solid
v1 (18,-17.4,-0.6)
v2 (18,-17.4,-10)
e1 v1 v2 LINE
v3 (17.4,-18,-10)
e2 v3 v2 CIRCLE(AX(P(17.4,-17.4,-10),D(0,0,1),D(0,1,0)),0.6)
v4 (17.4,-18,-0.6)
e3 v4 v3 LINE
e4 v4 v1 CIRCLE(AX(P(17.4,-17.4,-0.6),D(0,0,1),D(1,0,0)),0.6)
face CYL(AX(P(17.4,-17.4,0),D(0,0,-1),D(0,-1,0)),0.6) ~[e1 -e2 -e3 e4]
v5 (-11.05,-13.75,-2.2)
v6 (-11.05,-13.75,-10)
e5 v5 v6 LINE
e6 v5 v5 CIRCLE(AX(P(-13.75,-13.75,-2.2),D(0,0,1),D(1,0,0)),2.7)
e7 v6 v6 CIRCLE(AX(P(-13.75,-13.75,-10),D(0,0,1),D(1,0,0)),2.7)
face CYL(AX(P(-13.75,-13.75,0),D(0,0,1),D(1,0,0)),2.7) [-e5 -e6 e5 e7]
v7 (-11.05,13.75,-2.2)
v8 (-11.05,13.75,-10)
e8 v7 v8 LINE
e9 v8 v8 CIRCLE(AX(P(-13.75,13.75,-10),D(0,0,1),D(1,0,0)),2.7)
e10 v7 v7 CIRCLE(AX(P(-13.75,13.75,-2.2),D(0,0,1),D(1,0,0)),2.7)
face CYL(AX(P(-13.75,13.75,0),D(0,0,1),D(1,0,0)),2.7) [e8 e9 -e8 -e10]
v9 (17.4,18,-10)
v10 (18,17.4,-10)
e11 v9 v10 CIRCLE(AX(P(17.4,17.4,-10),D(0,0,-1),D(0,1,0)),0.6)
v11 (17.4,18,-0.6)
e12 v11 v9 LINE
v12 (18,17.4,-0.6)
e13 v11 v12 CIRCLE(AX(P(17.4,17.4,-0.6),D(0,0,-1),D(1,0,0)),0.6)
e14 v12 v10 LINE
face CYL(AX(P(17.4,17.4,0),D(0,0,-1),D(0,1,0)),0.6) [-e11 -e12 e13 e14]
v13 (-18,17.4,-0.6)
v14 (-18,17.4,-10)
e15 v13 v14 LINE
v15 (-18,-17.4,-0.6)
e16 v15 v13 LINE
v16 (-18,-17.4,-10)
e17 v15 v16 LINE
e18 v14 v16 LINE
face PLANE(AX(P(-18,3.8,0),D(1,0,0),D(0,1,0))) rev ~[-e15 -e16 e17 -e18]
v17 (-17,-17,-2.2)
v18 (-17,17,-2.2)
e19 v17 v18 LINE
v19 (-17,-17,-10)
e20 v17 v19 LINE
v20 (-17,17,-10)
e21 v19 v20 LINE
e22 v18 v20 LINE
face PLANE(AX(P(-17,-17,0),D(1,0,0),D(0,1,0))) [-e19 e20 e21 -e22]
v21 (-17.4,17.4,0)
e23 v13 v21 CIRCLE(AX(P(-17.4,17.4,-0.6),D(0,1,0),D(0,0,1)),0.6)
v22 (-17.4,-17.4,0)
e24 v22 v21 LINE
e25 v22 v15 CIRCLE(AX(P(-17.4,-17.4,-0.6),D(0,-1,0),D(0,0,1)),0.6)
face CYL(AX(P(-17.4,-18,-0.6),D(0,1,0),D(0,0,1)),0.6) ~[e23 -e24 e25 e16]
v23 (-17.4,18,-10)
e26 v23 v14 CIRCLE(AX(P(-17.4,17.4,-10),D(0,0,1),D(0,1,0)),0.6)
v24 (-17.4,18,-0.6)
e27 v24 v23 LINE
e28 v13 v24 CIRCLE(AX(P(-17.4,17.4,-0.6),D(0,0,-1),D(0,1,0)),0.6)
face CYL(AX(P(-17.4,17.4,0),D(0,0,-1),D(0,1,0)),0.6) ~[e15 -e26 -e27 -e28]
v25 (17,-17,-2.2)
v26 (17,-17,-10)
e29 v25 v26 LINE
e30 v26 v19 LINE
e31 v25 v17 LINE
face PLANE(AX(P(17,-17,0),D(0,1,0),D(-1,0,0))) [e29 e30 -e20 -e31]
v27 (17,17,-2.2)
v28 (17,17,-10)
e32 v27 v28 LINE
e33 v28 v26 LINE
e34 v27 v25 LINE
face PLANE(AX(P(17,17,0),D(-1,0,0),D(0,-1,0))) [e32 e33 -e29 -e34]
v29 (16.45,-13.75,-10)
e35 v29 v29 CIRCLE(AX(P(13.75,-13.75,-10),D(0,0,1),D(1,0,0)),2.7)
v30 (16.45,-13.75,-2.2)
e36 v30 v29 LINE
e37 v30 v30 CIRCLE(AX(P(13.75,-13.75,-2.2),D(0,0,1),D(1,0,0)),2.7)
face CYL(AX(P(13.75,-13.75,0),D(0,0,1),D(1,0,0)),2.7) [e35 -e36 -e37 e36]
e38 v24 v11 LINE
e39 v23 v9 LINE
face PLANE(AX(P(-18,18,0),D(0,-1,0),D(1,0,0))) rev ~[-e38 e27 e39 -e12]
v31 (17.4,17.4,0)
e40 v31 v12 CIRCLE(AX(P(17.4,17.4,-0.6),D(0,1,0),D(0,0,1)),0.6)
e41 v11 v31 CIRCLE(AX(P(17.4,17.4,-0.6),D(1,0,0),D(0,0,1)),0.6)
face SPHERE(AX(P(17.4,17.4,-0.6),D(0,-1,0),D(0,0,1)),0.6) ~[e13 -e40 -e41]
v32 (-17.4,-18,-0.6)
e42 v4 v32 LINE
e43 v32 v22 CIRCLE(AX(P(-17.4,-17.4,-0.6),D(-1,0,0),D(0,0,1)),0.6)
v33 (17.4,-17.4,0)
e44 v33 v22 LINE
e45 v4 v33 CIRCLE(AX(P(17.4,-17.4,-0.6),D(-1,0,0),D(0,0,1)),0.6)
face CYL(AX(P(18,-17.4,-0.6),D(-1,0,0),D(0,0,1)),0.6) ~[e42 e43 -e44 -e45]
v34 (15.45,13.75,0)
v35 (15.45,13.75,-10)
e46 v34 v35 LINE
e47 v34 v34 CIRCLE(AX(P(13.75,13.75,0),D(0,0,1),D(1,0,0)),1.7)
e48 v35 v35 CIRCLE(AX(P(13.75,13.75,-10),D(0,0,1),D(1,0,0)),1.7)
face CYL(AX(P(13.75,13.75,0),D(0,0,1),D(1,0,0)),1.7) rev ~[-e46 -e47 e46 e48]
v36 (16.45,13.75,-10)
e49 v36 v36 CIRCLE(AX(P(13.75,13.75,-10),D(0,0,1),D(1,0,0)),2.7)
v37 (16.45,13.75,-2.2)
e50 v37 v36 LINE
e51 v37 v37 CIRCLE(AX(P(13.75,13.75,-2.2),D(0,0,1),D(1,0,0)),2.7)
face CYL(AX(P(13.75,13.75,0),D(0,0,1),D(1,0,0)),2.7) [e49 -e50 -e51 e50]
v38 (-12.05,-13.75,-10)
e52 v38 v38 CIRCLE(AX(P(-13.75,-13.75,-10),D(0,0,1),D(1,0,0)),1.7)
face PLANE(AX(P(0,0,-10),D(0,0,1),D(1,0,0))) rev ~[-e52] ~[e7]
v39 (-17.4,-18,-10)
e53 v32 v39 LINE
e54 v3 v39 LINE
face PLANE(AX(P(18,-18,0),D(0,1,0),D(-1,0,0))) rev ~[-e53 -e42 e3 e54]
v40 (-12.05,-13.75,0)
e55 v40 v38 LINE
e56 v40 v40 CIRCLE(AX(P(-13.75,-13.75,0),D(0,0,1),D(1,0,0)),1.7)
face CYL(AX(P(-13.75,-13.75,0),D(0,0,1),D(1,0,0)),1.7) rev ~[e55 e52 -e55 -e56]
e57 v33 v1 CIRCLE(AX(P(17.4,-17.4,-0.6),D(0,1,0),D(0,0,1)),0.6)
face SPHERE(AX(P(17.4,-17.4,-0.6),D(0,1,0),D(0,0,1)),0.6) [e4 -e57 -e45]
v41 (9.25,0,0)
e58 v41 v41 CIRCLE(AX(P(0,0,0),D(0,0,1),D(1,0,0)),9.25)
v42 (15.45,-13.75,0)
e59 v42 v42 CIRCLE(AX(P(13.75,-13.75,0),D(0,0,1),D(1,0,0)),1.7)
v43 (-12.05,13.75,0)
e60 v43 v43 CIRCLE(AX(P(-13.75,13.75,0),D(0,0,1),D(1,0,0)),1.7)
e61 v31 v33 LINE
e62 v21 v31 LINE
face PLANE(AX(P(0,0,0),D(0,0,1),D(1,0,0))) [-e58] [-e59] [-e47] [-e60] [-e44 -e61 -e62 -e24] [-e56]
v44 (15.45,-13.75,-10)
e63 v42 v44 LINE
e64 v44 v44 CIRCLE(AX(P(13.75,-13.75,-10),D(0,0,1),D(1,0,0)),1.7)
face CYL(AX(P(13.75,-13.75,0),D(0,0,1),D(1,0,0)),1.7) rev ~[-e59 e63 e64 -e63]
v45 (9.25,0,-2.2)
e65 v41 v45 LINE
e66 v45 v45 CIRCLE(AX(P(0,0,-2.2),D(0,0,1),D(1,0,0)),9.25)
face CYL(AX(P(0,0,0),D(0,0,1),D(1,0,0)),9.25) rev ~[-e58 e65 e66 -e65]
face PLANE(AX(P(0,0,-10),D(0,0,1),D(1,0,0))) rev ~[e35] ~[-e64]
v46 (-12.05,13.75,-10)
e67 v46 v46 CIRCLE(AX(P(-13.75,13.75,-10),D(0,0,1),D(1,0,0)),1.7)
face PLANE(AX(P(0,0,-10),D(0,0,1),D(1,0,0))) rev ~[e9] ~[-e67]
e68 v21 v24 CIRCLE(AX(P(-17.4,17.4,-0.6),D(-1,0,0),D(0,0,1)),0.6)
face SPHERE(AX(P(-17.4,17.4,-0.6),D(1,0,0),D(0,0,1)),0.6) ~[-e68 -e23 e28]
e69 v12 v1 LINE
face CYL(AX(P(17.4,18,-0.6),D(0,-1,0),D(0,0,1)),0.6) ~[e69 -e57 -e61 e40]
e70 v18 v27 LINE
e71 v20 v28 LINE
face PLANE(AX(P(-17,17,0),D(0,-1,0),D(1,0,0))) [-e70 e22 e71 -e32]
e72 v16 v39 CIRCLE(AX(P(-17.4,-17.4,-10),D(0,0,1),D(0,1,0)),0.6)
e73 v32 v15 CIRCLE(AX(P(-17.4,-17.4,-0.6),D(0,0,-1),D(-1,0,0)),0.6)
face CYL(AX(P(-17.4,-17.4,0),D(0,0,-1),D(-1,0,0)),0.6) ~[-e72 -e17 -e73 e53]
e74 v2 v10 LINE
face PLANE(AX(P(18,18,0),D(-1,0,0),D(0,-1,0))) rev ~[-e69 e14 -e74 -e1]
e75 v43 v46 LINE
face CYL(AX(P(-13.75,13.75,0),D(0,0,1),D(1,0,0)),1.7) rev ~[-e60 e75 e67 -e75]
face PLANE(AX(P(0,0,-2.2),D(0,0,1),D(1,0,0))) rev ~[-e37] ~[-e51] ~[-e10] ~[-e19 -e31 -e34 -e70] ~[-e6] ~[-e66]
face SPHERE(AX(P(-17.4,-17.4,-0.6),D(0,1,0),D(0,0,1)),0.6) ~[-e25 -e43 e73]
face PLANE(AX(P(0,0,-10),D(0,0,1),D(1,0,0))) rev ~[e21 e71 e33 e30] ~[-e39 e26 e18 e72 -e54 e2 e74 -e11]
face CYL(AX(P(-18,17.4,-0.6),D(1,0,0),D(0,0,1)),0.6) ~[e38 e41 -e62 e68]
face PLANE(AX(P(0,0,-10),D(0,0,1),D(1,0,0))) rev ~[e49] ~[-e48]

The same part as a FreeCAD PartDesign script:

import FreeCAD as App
import Part
import Sketcher

V = App.Vector


def edges_at(feature, points):
    """Names of the edges that pass closest to the given points."""
    edges = feature.Shape.Edges
    near = lambda p: min(range(len(edges)), key=lambda i: edges[i].distToShape(Part.Vertex(*p))[0])
    return sorted({f"Edge{near(p) + 1}" for p in points})

doc = App.newDocument("Part")
params = doc.addObject("Spreadsheet::Sheet", "Params")
for row, (alias, value) in enumerate([
    ("sketch1_diameter", "5.4 mm"),
    ("sketch1_diameter2", "3.4 mm"),
    ("sketch1_width", "36 mm"),
    ("sketch1_width2", "34 mm"),
    ("pad1_length", "10 mm"),
    ("sketch2_diameter", "5.4 mm"),
    ("sketch2_diameter2", "18.5 mm"),
    ("sketch2_width", "34 mm"),
    ("pad2_length", "2.2 mm"),
    ("fillet_radius", "0.6 mm"),
], start=1):
    params.set(f"A{row}", alias)
    params.set(f"B{row}", "=" + value)
    params.setAlias(f"B{row}", alias)

body = doc.addObject("PartDesign::Body", "Body")
body.AllowCompound = True

sketch1 = body.newObject("Sketcher::SketchObject", "Sketch")
sketch1.AttachmentSupport = (doc.getObject("XY_Plane"), [""])
sketch1.MapMode = "FlatFace"
sketch1.addGeometry([
    Part.Circle(V(-13.8, 13.8, 0), V(0, 0, 1), 2.7),
    Part.Circle(V(-13.8, 13.8, 0), V(0, 0, 1), 1.7),
    Part.LineSegment(V(-18, 18, 0), V(-18, -18, 0)),
    Part.LineSegment(V(-18, -18, 0), V(18, -18, 0)),
    Part.LineSegment(V(18, -18, 0), V(18, 18, 0)),
    Part.LineSegment(V(18, 18, 0), V(-18, 18, 0)),
    Part.LineSegment(V(-17, -17, 0), V(-17, 17, 0)),
    Part.LineSegment(V(-17, 17, 0), V(17, 17, 0)),
    Part.LineSegment(V(17, 17, 0), V(17, -17, 0)),
    Part.LineSegment(V(17, -17, 0), V(-17, -17, 0)),
    Part.Circle(V(13.8, 13.8, 0), V(0, 0, 1), 2.7),
    Part.Circle(V(13.8, 13.8, 0), V(0, 0, 1), 1.7),
    Part.Circle(V(-13.8, -13.8, 0), V(0, 0, 1), 2.7),
    Part.Circle(V(-13.8, -13.8, 0), V(0, 0, 1), 1.7),
    Part.Circle(V(13.8, -13.8, 0), V(0, 0, 1), 2.7),
    Part.Circle(V(13.8, -13.8, 0), V(0, 0, 1), 1.7),
], False)
sketch1.addConstraint([
    Sketcher.Constraint("Coincident", 2, 2, 3, 1),
    Sketcher.Constraint("Coincident", 3, 2, 4, 1),
    Sketcher.Constraint("Coincident", 4, 2, 5, 1),
    Sketcher.Constraint("Coincident", 5, 2, 2, 1),
    Sketcher.Constraint("Coincident", 6, 2, 7, 1),
    Sketcher.Constraint("Coincident", 7, 2, 8, 1),
    Sketcher.Constraint("Coincident", 8, 2, 9, 1),
    Sketcher.Constraint("Coincident", 9, 2, 6, 1),
    Sketcher.Constraint("Vertical", 2),
    Sketcher.Constraint("Horizontal", 3),
    Sketcher.Constraint("Vertical", 4),
    Sketcher.Constraint("Horizontal", 5),
    Sketcher.Constraint("Vertical", 6),
    Sketcher.Constraint("Horizontal", 7),
    Sketcher.Constraint("Vertical", 8),
    Sketcher.Constraint("Horizontal", 9),
    Sketcher.Constraint("Coincident", 1, 3, 0, 3),
    Sketcher.Constraint("Coincident", 11, 3, 10, 3),
    Sketcher.Constraint("Coincident", 13, 3, 12, 3),
    Sketcher.Constraint("Coincident", 15, 3, 14, 3),
    Sketcher.Constraint("Equal", 0, 10),
    Sketcher.Constraint("Equal", 1, 11),
    Sketcher.Constraint("Equal", 10, 12),
    Sketcher.Constraint("Equal", 11, 13),
    Sketcher.Constraint("Equal", 12, 14),
    Sketcher.Constraint("Equal", 13, 15),
    Sketcher.Constraint("Symmetric", 10, 3, 12, 3, -1, 1),
    Sketcher.Constraint("Symmetric", 0, 3, 14, 3, -1, 1),
    Sketcher.Constraint("Symmetric", 2, 2, 4, 2, -1, 1),
    Sketcher.Constraint("Symmetric", 6, 2, 8, 2, -1, 1),
    Sketcher.Constraint("Symmetric", 0, 3, 10, 3, -2),
    Sketcher.Constraint("Equal", 5, 2),
    Sketcher.Constraint("Equal", 9, 6),
    Sketcher.Constraint("Diameter", 0, 5.4),
    Sketcher.Constraint("Diameter", 1, 3.4),
    Sketcher.Constraint("DistanceX", 3, 1, 3, 2, 36.0),
    Sketcher.Constraint("DistanceX", 7, 1, 7, 2, 34.0),
    Sketcher.Constraint("DistanceX", 0, 3, 10, 3, 27.5),
    Sketcher.Constraint("DistanceY", 12, 3, 0, 3, 27.5),
])
sketch1.setExpression("Constraints[33]", "Params.sketch1_diameter")
sketch1.setExpression("Constraints[34]", "Params.sketch1_diameter2")
sketch1.setExpression("Constraints[35]", "Params.sketch1_width")
sketch1.setExpression("Constraints[36]", "Params.sketch1_width2")
pad1 = body.newObject("PartDesign::Pad", "Pad")
pad1.Profile = sketch1
pad1.setExpression("Length", "Params.pad1_length")
pad1.Reversed = True

sketch2 = body.newObject("Sketcher::SketchObject", "Sketch001")
sketch2.AttachmentSupport = (doc.getObject("XY_Plane"), [""])
sketch2.MapMode = "FlatFace"
sketch2.addGeometry([
    Part.LineSegment(V(17, 17, 0), V(-17, 17, 0)),
    Part.LineSegment(V(-17, 17, 0), V(-17, -17, 0)),
    Part.LineSegment(V(-17, -17, 0), V(17, -17, 0)),
    Part.LineSegment(V(17, -17, 0), V(17, 17, 0)),
    Part.Circle(V(-13.8, -13.8, 0), V(0, 0, 1), 2.7),
    Part.Circle(V(13.8, -13.8, 0), V(0, 0, 1), 2.7),
    Part.Circle(V(0, 0, 0), V(0, 0, 1), 9.2),
    Part.Circle(V(-13.8, 13.8, 0), V(0, 0, 1), 2.7),
    Part.Circle(V(13.8, 13.8, 0), V(0, 0, 1), 2.7),
], False)
sketch2.addConstraint([
    Sketcher.Constraint("Coincident", 0, 2, 1, 1),
    Sketcher.Constraint("Coincident", 1, 2, 2, 1),
    Sketcher.Constraint("Coincident", 2, 2, 3, 1),
    Sketcher.Constraint("Coincident", 3, 2, 0, 1),
    Sketcher.Constraint("Horizontal", 0),
    Sketcher.Constraint("Vertical", 1),
    Sketcher.Constraint("Horizontal", 2),
    Sketcher.Constraint("Vertical", 3),
    Sketcher.Constraint("Coincident", 6, 3, -1, 1),
    Sketcher.Constraint("Equal", 4, 5),
    Sketcher.Constraint("Equal", 5, 7),
    Sketcher.Constraint("Equal", 7, 8),
    Sketcher.Constraint("Symmetric", 5, 3, 7, 3, -1, 1),
    Sketcher.Constraint("Symmetric", 4, 3, 8, 3, -1, 1),
    Sketcher.Constraint("Symmetric", 0, 2, 2, 2, -1, 1),
    Sketcher.Constraint("Symmetric", 4, 3, 5, 3, -2),
    Sketcher.Constraint("Equal", 2, 1),
    Sketcher.Constraint("Diameter", 4, 5.4),
    Sketcher.Constraint("Diameter", 6, 18.5),
    Sketcher.Constraint("DistanceX", 0, 2, 0, 1, 34.0),
    Sketcher.Constraint("DistanceX", 4, 3, 5, 3, 27.5),
    Sketcher.Constraint("DistanceY", 4, 3, 7, 3, 27.5),
])
sketch2.setExpression("Constraints[17]", "Params.sketch2_diameter")
sketch2.setExpression("Constraints[18]", "Params.sketch2_diameter2")
sketch2.setExpression("Constraints[19]", "Params.sketch2_width")
pad2 = body.newObject("PartDesign::Pad", "Pad001")
pad2.Profile = sketch2
pad2.setExpression("Length", "Params.pad2_length")
pad2.Reversed = True
doc.recompute()

fillet = body.newObject("PartDesign::Fillet", "Fillet")
fillet.Base = (pad2, edges_at(pad2, [
    (18, 0, 0),
    (0, 18, 0),
    (-18, 0, 0),
    (0, -18, 0),
    (18, 18, -5),
    (-18, 18, -5),
    (-18, -18, -5),
    (18, -18, -5),
]))
fillet.setExpression("Radius", "Params.fillet_radius")

doc.recompute()
